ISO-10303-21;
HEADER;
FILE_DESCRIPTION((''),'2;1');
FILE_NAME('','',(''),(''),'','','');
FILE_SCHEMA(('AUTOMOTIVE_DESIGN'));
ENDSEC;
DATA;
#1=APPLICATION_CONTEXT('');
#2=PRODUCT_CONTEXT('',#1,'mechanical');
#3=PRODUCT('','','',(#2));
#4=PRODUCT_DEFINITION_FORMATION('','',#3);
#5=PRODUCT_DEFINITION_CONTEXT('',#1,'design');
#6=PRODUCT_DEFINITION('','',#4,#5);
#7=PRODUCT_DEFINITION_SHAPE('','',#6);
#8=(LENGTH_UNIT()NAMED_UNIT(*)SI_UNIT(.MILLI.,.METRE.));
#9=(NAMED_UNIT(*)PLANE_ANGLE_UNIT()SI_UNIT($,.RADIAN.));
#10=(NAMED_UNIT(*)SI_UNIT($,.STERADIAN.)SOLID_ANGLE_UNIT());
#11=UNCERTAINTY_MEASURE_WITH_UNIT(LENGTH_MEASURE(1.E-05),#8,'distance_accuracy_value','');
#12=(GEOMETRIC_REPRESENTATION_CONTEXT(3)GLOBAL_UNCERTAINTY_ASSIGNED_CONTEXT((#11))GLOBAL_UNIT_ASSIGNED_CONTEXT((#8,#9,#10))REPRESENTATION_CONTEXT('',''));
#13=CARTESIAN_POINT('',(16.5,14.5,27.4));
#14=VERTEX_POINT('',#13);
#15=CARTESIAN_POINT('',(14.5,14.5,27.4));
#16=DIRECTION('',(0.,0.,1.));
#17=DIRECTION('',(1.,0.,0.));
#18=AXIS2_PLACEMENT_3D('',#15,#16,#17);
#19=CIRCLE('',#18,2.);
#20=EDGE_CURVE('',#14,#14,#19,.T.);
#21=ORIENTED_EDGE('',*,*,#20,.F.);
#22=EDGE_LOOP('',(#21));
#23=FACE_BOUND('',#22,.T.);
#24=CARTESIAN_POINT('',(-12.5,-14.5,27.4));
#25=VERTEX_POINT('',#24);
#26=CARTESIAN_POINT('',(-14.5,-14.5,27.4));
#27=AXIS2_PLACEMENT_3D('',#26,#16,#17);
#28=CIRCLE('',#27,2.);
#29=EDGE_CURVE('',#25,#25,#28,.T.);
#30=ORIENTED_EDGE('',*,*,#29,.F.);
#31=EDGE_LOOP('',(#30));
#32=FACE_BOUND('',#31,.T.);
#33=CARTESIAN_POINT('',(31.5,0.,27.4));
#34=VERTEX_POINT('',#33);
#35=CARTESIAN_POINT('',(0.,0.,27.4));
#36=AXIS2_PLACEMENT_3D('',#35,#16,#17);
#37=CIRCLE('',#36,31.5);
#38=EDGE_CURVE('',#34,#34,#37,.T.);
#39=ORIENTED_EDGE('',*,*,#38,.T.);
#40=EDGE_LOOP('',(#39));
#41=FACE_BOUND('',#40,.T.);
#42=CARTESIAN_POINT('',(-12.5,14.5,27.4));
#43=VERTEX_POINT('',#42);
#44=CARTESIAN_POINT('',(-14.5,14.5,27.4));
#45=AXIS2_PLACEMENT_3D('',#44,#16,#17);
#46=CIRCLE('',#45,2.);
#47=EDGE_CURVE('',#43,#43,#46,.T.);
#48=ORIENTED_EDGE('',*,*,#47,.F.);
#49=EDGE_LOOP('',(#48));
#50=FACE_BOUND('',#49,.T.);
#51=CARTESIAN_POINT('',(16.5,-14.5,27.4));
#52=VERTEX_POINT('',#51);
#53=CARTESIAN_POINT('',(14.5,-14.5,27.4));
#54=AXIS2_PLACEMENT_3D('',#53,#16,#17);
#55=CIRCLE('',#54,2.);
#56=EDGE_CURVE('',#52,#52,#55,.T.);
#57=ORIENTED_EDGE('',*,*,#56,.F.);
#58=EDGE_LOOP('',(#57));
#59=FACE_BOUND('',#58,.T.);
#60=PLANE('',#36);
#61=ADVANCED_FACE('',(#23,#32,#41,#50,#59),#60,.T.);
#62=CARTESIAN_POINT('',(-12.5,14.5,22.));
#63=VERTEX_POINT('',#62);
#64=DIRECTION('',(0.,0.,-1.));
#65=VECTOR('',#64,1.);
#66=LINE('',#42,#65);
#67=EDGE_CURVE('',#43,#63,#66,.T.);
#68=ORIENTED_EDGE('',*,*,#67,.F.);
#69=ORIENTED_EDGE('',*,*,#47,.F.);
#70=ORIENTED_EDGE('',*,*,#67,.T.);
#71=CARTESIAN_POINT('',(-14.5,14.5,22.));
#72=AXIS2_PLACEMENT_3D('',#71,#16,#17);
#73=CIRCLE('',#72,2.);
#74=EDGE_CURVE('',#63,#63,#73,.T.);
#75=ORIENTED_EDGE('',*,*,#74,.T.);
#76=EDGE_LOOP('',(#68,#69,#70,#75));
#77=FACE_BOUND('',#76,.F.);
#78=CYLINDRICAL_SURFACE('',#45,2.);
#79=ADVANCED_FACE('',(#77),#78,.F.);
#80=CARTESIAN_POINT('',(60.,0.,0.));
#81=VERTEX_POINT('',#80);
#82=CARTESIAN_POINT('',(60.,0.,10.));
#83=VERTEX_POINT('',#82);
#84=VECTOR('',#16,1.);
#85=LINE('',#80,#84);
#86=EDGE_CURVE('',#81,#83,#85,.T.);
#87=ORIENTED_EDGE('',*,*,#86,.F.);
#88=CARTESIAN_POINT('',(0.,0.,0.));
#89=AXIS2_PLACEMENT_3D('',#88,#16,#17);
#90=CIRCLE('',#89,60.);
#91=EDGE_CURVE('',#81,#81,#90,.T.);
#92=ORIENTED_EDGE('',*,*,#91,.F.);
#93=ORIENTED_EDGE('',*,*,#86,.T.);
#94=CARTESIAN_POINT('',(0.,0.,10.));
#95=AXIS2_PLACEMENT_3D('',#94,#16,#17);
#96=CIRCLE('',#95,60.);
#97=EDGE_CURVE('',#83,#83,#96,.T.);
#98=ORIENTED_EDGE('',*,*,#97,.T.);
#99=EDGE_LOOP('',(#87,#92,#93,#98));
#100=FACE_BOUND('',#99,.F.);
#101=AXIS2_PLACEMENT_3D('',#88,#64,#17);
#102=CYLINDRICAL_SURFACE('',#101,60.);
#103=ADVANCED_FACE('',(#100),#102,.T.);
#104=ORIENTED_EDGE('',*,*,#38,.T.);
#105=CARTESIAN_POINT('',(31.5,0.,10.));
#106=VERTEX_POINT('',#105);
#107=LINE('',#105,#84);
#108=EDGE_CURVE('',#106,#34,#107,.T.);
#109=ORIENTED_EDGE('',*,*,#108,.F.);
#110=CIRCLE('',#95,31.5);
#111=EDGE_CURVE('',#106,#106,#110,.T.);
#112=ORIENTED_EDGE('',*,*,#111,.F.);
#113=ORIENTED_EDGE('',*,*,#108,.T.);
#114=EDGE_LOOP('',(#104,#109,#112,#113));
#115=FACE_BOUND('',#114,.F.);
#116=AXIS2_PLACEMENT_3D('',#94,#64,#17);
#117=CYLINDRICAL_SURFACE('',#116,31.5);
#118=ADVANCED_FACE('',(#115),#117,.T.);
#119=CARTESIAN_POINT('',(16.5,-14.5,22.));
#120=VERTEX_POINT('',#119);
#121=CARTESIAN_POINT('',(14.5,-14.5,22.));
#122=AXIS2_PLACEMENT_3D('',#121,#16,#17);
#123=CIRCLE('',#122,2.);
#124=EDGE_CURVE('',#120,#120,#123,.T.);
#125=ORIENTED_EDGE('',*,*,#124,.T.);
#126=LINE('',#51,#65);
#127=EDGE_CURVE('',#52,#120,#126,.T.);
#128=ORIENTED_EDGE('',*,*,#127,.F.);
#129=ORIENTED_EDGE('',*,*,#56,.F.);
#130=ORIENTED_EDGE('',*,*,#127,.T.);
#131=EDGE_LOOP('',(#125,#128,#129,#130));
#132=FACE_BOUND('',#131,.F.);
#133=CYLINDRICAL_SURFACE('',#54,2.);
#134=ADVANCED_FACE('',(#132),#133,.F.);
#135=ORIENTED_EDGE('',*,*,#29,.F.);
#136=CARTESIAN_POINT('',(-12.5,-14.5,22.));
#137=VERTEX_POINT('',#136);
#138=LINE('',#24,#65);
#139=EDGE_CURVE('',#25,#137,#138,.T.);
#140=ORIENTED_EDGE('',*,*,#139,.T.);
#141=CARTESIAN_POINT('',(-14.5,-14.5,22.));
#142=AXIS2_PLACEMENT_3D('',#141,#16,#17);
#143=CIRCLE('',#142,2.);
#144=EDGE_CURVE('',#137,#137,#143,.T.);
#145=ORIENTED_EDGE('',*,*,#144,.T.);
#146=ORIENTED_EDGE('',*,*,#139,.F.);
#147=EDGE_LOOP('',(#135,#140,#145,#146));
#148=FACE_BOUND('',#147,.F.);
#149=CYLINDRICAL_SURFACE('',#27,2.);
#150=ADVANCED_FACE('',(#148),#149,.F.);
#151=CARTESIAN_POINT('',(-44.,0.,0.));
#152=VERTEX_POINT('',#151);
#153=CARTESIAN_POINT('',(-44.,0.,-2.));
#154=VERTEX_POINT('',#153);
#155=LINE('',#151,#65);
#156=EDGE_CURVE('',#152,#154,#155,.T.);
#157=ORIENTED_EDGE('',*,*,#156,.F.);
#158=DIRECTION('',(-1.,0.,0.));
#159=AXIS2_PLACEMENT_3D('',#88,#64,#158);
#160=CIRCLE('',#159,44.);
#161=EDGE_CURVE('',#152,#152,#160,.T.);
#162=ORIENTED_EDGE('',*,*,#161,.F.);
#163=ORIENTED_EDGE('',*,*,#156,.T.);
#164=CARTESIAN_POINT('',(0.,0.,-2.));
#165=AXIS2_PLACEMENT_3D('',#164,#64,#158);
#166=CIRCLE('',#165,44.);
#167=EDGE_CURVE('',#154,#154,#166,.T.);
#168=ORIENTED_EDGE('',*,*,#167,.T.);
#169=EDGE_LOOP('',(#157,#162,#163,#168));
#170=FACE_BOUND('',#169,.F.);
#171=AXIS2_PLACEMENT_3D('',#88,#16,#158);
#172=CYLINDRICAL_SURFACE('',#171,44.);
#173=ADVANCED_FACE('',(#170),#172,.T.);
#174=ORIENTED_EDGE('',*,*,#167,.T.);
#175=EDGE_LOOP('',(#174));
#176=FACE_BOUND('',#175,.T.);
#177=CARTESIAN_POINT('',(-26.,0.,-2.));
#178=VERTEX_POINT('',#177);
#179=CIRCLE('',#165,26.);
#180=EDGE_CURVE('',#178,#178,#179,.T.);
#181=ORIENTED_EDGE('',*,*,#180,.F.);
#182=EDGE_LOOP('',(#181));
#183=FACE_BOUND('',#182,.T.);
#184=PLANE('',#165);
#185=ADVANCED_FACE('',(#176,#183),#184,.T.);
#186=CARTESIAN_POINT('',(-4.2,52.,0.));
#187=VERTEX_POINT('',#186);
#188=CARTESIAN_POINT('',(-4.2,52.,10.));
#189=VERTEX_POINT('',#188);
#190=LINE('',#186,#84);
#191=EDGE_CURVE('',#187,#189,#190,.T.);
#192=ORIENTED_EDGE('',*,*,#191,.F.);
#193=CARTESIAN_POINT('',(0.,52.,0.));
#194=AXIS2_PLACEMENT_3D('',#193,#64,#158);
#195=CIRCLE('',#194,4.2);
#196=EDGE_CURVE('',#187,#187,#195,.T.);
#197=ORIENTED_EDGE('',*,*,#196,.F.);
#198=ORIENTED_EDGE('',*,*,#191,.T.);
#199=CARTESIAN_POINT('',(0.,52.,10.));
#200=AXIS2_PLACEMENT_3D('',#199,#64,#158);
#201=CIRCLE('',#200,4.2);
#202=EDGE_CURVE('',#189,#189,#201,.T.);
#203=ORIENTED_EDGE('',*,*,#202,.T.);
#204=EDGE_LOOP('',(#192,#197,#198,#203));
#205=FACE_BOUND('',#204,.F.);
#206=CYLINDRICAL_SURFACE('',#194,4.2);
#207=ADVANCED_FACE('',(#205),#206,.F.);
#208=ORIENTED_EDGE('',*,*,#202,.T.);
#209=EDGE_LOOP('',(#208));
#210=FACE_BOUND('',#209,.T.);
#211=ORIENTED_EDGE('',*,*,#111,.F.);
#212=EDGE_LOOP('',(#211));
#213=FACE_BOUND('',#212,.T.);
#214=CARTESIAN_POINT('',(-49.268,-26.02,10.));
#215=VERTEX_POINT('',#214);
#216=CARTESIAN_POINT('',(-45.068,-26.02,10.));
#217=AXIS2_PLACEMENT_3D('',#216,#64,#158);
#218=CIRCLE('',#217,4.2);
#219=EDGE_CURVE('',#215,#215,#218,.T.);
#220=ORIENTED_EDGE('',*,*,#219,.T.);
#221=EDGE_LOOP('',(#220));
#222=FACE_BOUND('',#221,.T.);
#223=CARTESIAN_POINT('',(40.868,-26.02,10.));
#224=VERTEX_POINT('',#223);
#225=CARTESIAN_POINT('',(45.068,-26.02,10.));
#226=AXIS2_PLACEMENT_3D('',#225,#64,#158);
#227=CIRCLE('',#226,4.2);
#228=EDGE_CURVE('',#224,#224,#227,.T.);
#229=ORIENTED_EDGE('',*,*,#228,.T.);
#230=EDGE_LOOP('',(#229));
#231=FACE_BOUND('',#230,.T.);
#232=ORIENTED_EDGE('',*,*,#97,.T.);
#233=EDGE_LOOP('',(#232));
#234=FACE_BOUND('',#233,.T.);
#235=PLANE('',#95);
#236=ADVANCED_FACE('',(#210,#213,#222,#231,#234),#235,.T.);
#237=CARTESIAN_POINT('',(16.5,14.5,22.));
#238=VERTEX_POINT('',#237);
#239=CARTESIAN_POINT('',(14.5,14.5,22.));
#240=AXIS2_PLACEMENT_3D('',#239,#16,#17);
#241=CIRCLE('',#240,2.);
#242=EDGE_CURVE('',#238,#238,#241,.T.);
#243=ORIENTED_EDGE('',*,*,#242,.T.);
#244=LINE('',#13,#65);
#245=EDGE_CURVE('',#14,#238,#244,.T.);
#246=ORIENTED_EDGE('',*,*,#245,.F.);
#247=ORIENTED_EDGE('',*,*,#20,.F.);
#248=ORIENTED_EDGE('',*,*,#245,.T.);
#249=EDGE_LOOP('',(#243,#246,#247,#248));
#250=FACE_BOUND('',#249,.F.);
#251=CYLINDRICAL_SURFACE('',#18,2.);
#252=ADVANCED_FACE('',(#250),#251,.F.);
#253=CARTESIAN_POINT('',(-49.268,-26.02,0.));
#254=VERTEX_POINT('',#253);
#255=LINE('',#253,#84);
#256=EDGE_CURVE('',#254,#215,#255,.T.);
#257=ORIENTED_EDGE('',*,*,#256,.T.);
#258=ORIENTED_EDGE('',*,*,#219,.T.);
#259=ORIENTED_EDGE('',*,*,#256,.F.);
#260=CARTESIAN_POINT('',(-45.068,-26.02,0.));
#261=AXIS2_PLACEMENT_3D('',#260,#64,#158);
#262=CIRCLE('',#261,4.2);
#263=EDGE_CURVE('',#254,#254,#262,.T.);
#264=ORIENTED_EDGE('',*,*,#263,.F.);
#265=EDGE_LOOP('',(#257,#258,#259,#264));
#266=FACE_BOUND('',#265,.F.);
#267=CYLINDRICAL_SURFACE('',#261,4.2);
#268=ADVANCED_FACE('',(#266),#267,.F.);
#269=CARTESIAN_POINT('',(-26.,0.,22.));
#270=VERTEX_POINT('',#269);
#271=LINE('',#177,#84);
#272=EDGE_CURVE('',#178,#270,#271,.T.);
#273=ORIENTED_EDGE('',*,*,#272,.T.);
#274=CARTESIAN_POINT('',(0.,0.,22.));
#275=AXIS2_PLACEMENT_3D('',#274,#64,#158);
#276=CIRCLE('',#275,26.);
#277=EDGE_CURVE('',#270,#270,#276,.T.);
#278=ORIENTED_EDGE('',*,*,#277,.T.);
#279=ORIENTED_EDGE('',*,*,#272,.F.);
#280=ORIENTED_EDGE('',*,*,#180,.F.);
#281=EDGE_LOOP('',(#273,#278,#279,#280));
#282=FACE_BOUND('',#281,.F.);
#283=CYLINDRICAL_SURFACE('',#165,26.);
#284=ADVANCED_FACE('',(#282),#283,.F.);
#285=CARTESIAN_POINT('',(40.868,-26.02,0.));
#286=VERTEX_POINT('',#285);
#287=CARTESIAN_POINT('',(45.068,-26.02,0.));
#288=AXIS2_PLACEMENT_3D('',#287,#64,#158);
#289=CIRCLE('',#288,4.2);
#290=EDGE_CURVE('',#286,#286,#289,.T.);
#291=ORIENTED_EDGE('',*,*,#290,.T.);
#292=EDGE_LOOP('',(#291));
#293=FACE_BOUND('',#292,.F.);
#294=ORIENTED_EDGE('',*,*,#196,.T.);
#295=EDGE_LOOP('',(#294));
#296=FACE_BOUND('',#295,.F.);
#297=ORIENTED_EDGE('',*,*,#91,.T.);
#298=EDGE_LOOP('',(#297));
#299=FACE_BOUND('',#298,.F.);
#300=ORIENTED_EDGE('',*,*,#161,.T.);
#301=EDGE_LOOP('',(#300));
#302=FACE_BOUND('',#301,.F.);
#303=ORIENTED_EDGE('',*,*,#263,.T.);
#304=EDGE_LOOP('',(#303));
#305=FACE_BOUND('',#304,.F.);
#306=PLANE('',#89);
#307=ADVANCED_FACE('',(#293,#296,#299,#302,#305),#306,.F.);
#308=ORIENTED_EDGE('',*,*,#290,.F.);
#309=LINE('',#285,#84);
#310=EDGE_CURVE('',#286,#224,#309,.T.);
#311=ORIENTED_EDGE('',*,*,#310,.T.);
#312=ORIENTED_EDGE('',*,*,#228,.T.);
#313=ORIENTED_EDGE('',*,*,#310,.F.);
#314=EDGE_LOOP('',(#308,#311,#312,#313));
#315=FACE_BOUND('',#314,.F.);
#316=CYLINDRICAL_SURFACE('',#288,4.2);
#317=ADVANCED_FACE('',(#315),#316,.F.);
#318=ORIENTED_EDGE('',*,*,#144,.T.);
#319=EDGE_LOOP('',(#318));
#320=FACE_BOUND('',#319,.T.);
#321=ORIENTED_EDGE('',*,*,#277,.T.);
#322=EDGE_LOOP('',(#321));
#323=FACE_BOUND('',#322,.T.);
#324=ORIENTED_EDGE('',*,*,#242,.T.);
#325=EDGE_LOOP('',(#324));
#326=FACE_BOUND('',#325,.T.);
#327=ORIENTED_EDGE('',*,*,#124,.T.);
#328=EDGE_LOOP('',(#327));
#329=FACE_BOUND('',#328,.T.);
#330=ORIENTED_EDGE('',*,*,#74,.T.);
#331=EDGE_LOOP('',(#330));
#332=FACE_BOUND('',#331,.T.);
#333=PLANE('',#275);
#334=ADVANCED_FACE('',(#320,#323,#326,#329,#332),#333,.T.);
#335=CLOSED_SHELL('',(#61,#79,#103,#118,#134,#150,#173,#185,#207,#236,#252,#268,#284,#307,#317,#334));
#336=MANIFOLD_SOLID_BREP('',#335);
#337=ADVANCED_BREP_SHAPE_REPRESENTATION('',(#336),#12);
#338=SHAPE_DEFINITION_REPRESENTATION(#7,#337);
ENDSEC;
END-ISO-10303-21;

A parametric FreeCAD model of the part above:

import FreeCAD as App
import Part
import Sketcher
from FreeCAD import Vector
Q = App.Units.Quantity

doc = App.newDocument("Part")
params = doc.addObject("Spreadsheet::Sheet", "Params")
for row, (alias, value) in enumerate([
    ("sketch1_diameter", "120 mm"),
    ("pad1_length", "10 mm"),
    ("sketch2_diameter", "63 mm"),
    ("pad2_length", "17.4 mm"),
    ("sketch3_diameter", "4 mm"),
    ("sketch4_diameter", "88 mm"),
    ("pad3_length", "2 mm"),
    ("sketch5_diameter", "52 mm"),
    ("pocket2_length", "24 mm"),
    ("sketch6_diameter", "8.4 mm"),
    ("pocket3_length", "10 mm"),
], start=1):
    params.set(f"A{row}", alias)
    params.set(f"B{row}", "=" + value)
    params.setAlias(f"B{row}", alias)

body = doc.addObject("PartDesign::Body", "Body")

# Sketch on XY plane
sketch1 = body.newObject("Sketcher::SketchObject", "Sketch")
sketch1.AttachmentSupport = (doc.getObject("XY_Plane"), [""])
sketch1.MapMode = "FlatFace"
sketch1.addGeometry(Part.Circle(Vector(0, 0, 0), Vector(0, 0, 1), 60), False)
sketch1.addConstraint(Sketcher.Constraint("Coincident", 0, 3, -1, 1))
sketch1.addConstraint(Sketcher.Constraint("Diameter", 0, Q("120 mm")))
sketch1.setExpression("Constraints[1]", "Params.sketch1_diameter")
pad1 = body.newObject("PartDesign::Pad", "Pad")
pad1.Profile = sketch1
pad1.setExpression("Length", "Params.pad1_length")

# Sketch on XY plane
sketch2 = body.newObject("Sketcher::SketchObject", "Sketch001")
sketch2.AttachmentSupport = (doc.getObject("XY_Plane"), [""])
sketch2.MapMode = "FlatFace"
sketch2.AttachmentOffset = App.Placement(Vector(0, 0, 10), App.Rotation())
sketch2.addGeometry(Part.Circle(Vector(0, 0, 0), Vector(0, 0, 1), 32), False)
sketch2.addConstraint(Sketcher.Constraint("Coincident", 0, 3, -1, 1))
sketch2.addConstraint(Sketcher.Constraint("Diameter", 0, Q("63 mm")))
sketch2.setExpression("Constraints[1]", "Params.sketch2_diameter")
pad2 = body.newObject("PartDesign::Pad", "Pad001")
pad2.Profile = sketch2
pad2.setExpression("Length", "Params.pad2_length")

# Sketch on XY plane
sketch3 = body.newObject("Sketcher::SketchObject", "Sketch002")
sketch3.AttachmentSupport = (doc.getObject("XY_Plane"), [""])
sketch3.MapMode = "FlatFace"
sketch3.AttachmentOffset = App.Placement(Vector(0, 0, 27.4), App.Rotation())
sketch3.addGeometry(Part.Circle(Vector(-14.5, 14.5, 0), Vector(0, 0, 1), 2), False)
sketch3.addGeometry(Part.Circle(Vector(14.5, 14.5, 0), Vector(0, 0, 1), 2), False)
sketch3.addGeometry(Part.Circle(Vector(14.5, -14.5, 0), Vector(0, 0, 1), 2), False)
sketch3.addGeometry(Part.Circle(Vector(-14.5, -14.5, 0), Vector(0, 0, 1), 2), False)
sketch3.addConstraint(Sketcher.Constraint("Equal", 0, 1))
sketch3.addConstraint(Sketcher.Constraint("Equal", 1, 2))
sketch3.addConstraint(Sketcher.Constraint("Equal", 2, 3))
sketch3.addConstraint(Sketcher.Constraint("Symmetric", 0, 3, 2, 3, -1, 1))
sketch3.addConstraint(Sketcher.Constraint("Symmetric", 1, 3, 3, 3, -1, 1))
sketch3.addConstraint(Sketcher.Constraint("Symmetric", 0, 3, 1, 3, -2))
sketch3.addConstraint(Sketcher.Constraint("Diameter", 0, Q("4 mm")))
sketch3.addConstraint(Sketcher.Constraint("DistanceX", 0, 3, 1, 3, Q("29 mm")))
sketch3.addConstraint(Sketcher.Constraint("DistanceY", 2, 3, 1, 3, Q("29 mm")))
sketch3.setExpression("Constraints[6]", "Params.sketch3_diameter")
pocket1 = body.newObject("PartDesign::Pocket", "Pocket")
pocket1.Profile = sketch3
pocket1.Type = "ThroughAll"

# Sketch on XY plane
sketch4 = body.newObject("Sketcher::SketchObject", "Sketch003")
sketch4.AttachmentSupport = (doc.getObject("XY_Plane"), [""])
sketch4.MapMode = "FlatFace"
sketch4.addGeometry(Part.Circle(Vector(0, 0, 0), Vector(0, 0, 1), 44), False)
sketch4.addConstraint(Sketcher.Constraint("Coincident", 0, 3, -1, 1))
sketch4.addConstraint(Sketcher.Constraint("Diameter", 0, Q("88 mm")))
sketch4.setExpression("Constraints[1]", "Params.sketch4_diameter")
pad3 = body.newObject("PartDesign::Pad", "Pad002")
pad3.Profile = sketch4
pad3.setExpression("Length", "Params.pad3_length")
pad3.Reversed = True

# Sketch on XY plane
sketch5 = body.newObject("Sketcher::SketchObject", "Sketch004")
sketch5.AttachmentSupport = (doc.getObject("XY_Plane"), [""])
sketch5.MapMode = "FlatFace"
sketch5.AttachmentOffset = App.Placement(Vector(0, 0, -2), App.Rotation())
sketch5.addGeometry(Part.Circle(Vector(0, 0, 0), Vector(0, 0, 1), 26), False)
sketch5.addConstraint(Sketcher.Constraint("Coincident", 0, 3, -1, 1))
sketch5.addConstraint(Sketcher.Constraint("Diameter", 0, Q("52 mm")))
sketch5.setExpression("Constraints[1]", "Params.sketch5_diameter")
pocket2 = body.newObject("PartDesign::Pocket", "Pocket001")
pocket2.Profile = sketch5
pocket2.setExpression("Length", "Params.pocket2_length")
pocket2.Reversed = True

# Sketch on XY plane
sketch6 = body.newObject("Sketcher::SketchObject", "Sketch005")
sketch6.AttachmentSupport = (doc.getObject("XY_Plane"), [""])
sketch6.MapMode = "FlatFace"
sketch6.addGeometry(Part.Circle(Vector(45.1, -26, 0), Vector(0, 0, 1), 4.2), False)
sketch6.addGeometry(Part.Circle(Vector(-45.1, -26, 0), Vector(0, 0, 1), 4.2), False)
sketch6.addGeometry(Part.Circle(Vector(0, 52, 0), Vector(0, 0, 1), 4.2), False)
sketch6.addConstraint(Sketcher.Constraint("Equal", 0, 1))
sketch6.addConstraint(Sketcher.Constraint("Equal", 1, 2))
sketch6.addConstraint(Sketcher.Constraint("Symmetric", 0, 3, 1, 3, -2))
sketch6.addConstraint(Sketcher.Constraint("PointOnObject", 2, 3, -2))
sketch6.addConstraint(Sketcher.Constraint("Diameter", 0, Q("8.4 mm")))
sketch6.addConstraint(Sketcher.Constraint("DistanceY", -1, 1, 2, 3, Q("52 mm")))
sketch6.addConstraint(Sketcher.Constraint("DistanceY", 0, 3, -1, 1, Q("26.02 mm")))
sketch6.addConstraint(Sketcher.Constraint("DistanceX", -1, 1, 0, 3, Q("45.068 mm")))
sketch6.setExpression("Constraints[4]", "Params.sketch6_diameter")
pocket3 = body.newObject("PartDesign::Pocket", "Pocket002")
pocket3.Profile = sketch6
pocket3.setExpression("Length", "Params.pocket3_length")
pocket3.Reversed = True

doc.recompute()
